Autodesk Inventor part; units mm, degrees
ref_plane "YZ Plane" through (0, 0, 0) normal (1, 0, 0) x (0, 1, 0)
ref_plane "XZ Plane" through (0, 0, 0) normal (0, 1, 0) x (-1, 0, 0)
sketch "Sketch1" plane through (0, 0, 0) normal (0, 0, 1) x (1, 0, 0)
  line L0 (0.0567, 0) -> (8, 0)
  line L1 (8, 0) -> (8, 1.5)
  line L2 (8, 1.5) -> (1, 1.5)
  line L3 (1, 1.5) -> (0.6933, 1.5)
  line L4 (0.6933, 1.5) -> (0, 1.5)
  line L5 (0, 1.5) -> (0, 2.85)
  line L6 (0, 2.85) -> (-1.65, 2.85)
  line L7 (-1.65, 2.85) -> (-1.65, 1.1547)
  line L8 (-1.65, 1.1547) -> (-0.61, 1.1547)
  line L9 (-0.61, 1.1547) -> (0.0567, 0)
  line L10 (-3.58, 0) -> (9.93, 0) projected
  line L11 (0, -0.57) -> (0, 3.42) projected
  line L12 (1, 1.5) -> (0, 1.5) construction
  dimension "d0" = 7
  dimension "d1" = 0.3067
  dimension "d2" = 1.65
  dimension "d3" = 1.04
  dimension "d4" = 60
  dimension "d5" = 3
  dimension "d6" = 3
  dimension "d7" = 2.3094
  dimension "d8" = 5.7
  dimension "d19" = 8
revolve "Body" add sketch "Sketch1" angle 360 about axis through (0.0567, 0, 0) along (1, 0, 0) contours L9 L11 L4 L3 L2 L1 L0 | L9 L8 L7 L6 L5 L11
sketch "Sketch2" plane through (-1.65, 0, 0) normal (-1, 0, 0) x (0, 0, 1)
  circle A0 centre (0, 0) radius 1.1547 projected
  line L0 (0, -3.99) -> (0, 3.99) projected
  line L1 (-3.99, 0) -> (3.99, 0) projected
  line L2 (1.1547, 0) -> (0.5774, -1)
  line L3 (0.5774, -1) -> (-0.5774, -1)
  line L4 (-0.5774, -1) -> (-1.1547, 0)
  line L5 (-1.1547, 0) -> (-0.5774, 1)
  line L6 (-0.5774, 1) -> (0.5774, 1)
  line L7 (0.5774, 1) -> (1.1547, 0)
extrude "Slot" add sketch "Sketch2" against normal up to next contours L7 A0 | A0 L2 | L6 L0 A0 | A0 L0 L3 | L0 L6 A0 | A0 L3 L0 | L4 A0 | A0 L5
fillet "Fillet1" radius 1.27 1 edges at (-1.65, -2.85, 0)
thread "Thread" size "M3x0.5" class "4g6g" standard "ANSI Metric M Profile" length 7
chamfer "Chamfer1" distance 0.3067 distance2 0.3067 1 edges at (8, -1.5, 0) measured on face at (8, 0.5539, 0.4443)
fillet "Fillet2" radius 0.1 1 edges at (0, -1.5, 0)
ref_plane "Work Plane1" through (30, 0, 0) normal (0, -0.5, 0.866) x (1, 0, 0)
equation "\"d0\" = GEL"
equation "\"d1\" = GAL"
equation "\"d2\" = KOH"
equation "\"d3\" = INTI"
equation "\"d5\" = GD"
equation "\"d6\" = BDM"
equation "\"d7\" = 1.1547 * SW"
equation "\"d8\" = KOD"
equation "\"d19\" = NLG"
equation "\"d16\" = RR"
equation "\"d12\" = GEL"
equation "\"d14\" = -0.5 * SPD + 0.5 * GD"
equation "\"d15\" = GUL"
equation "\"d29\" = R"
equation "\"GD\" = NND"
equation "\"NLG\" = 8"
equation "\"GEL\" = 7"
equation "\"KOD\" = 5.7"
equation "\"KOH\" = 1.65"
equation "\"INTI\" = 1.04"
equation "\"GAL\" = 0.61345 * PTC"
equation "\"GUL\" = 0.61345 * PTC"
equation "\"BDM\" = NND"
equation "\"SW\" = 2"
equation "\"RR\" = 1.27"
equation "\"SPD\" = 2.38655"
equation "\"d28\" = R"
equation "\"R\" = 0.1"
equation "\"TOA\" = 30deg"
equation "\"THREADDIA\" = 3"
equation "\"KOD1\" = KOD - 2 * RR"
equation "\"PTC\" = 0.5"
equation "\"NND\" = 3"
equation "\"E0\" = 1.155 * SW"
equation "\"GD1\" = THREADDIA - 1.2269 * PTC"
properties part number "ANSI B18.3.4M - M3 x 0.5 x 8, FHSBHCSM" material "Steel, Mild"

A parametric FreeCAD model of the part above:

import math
import FreeCAD as App
import Part
import Sketcher


def edges_at(feature, points):
    """Names of the edges that pass closest to the given points."""
    edges = feature.Shape.Edges
    near = lambda p: min(range(len(edges)), key=lambda i: edges[i].distToShape(Part.Vertex(*p))[0])
    return sorted({f"Edge{near(p) + 1}" for p in points})

doc = App.newDocument("Part")
body = doc.addObject("PartDesign::Body", "Body")

# Sketch on XY plane
sketch1 = doc.addObject("Sketcher::SketchObject", "Sketch")
body.addObject(sketch1)
sketch1.AttachmentSupport = (doc.XY_Plane, [""])
sketch1.MapMode = "FlatFace"
sketch1.addGeometry(Part.LineSegment(App.Vector(0.1, 0, 0), App.Vector(8, 0, 0)), False)
sketch1.addGeometry(Part.LineSegment(App.Vector(8, 0, 0), App.Vector(8, 1.5, 0)), False)
sketch1.addGeometry(Part.LineSegment(App.Vector(8, 1.5, 0), App.Vector(0, 1.5, 0)), False)
sketch1.addGeometry(Part.LineSegment(App.Vector(0, 1.5, 0), App.Vector(0, 2.9, 0)), False)
sketch1.addGeometry(Part.LineSegment(App.Vector(0, 2.9, 0), App.Vector(-1.6, 2.9, 0)), False)
sketch1.addGeometry(Part.LineSegment(App.Vector(-1.6, 2.9, 0), App.Vector(-1.6, 1.2, 0)), False)
sketch1.addGeometry(Part.LineSegment(App.Vector(-1.6, 1.2, 0), App.Vector(-0.6, 1.2, 0)), False)
sketch1.addGeometry(Part.LineSegment(App.Vector(-0.6, 1.2, 0), App.Vector(0.1, 0, 0)), False)
sketch1.addConstraint(Sketcher.Constraint("Coincident", 0, 2, 1, 1))
sketch1.addConstraint(Sketcher.Constraint("Coincident", 1, 2, 2, 1))
sketch1.addConstraint(Sketcher.Constraint("Coincident", 2, 2, 3, 1))
sketch1.addConstraint(Sketcher.Constraint("Coincident", 3, 2, 4, 1))
sketch1.addConstraint(Sketcher.Constraint("Coincident", 4, 2, 5, 1))
sketch1.addConstraint(Sketcher.Constraint("Coincident", 5, 2, 6, 1))
sketch1.addConstraint(Sketcher.Constraint("Coincident", 6, 2, 7, 1))
sketch1.addConstraint(Sketcher.Constraint("Coincident", 7, 2, 0, 1))
sketch1.addConstraint(Sketcher.Constraint("Horizontal", 0))
sketch1.addConstraint(Sketcher.Constraint("Vertical", 1))
sketch1.addConstraint(Sketcher.Constraint("Horizontal", 2))
sketch1.addConstraint(Sketcher.Constraint("Vertical", 3))
sketch1.addConstraint(Sketcher.Constraint("Horizontal", 4))
sketch1.addConstraint(Sketcher.Constraint("Vertical", 5))
sketch1.addConstraint(Sketcher.Constraint("Horizontal", 6))
sketch1.addConstraint(Sketcher.Constraint("PointOnObject", 0, 2, -1))
sketch1.addConstraint(Sketcher.Constraint("PointOnObject", 2, 2, -2))
sketch1.addConstraint(Sketcher.Constraint("DistanceX", 2, 2, 2, 1, 8.0))
sketch1.addConstraint(Sketcher.Constraint("DistanceX", 4, 2, 4, 1, 1.65))
sketch1.addConstraint(Sketcher.Constraint("DistanceX", 6, 1, 6, 2, 1.04))
sketch1.addConstraint(Sketcher.Constraint("DistanceY", 1, 1, 1, 2, 1.5))
sketch1.addConstraint(Sketcher.Constraint("DistanceY", 3, 1, 3, 2, 1.35))
sketch1.addConstraint(Sketcher.Constraint("DistanceX", 0, 1, 0, 2, 7.9433))
sketch1.addConstraint(Sketcher.Constraint("DistanceY", 5, 2, 5, 1, 1.6953))
revolution = doc.addObject("PartDesign::Revolution", "Revolution")
body.addObject(revolution)
revolution.Profile = sketch1
revolution.ReferenceAxis = (sketch1, ["H_Axis"])
revolution.Angle = 360

# Sketch on YZ plane
sketch2 = doc.addObject("Sketcher::SketchObject", "Sketch001")
body.addObject(sketch2)
sketch2.AttachmentSupport = (doc.YZ_Plane, [""])
sketch2.MapMode = "FlatFace"
sketch2.AttachmentOffset = App.Placement(App.Vector(0, 0, -1.65), App.Rotation())
sketch2.addGeometry(Part.LineSegment(App.Vector(1, 0.6, 0), App.Vector(0, 1.2, 0)), False)
sketch2.addGeometry(Part.ArcOfCircle(Part.Circle(App.Vector(0, 0, 0), App.Vector(0, 0, 1), 1.2), math.radians(30), math.radians(90)), False)
sketch2.addGeometry(Part.ArcOfCircle(Part.Circle(App.Vector(0, 0, 0), App.Vector(0, 0, 1), 1.2), math.radians(90), math.radians(150)), False)
sketch2.addGeometry(Part.LineSegment(App.Vector(0, 1.2, 0), App.Vector(-1, 0.6, 0)), False)
sketch2.addGeometry(Part.ArcOfCircle(Part.Circle(App.Vector(0, 0, 0), App.Vector(0, 0, 1), 1.2), math.radians(-30), math.radians(30)), False)
sketch2.addGeometry(Part.LineSegment(App.Vector(1, 0.6, 0), App.Vector(1, -0.6, 0)), False)
sketch2.addGeometry(Part.LineSegment(App.Vector(-1, 0.6, 0), App.Vector(-1, -0.6, 0)), False)
sketch2.addGeometry(Part.ArcOfCircle(Part.Circle(App.Vector(0, 0, 0), App.Vector(0, 0, 1), 1.2), math.radians(150), math.radians(210)), False)
sketch2.addGeometry(Part.LineSegment(App.Vector(-1, -0.6, 0), App.Vector(0, -1.2, 0)), False)
sketch2.addGeometry(Part.ArcOfCircle(Part.Circle(App.Vector(0, 0, 0), App.Vector(0, 0, 1), 1.2), math.radians(-150), math.radians(-90)), False)
sketch2.addGeometry(Part.ArcOfCircle(Part.Circle(App.Vector(0, 0, 0), App.Vector(0, 0, 1), 1.2), math.radians(-90), math.radians(-30)), False)
sketch2.addGeometry(Part.LineSegment(App.Vector(0, -1.2, 0), App.Vector(1, -0.6, 0)), False)
sketch2.addConstraint(Sketcher.Constraint("Coincident", 0, 1, 1, 1))
sketch2.addConstraint(Sketcher.Constraint("Coincident", 1, 2, 0, 2))
sketch2.addConstraint(Sketcher.Constraint("Coincident", 2, 1, 3, 1))
sketch2.addConstraint(Sketcher.Constraint("Coincident", 3, 2, 2, 2))
sketch2.addConstraint(Sketcher.Constraint("Coincident", 4, 1, 5, 2))
sketch2.addConstraint(Sketcher.Constraint("Coincident", 5, 1, 4, 2))
sketch2.addConstraint(Sketcher.Constraint("Coincident", 6, 1, 7, 1))
sketch2.addConstraint(Sketcher.Constraint("Coincident", 7, 2, 6, 2))
sketch2.addConstraint(Sketcher.Constraint("Coincident", 8, 1, 9, 1))
sketch2.addConstraint(Sketcher.Constraint("Coincident", 9, 2, 8, 2))
sketch2.addConstraint(Sketcher.Constraint("Coincident", 10, 1, 11, 1))
sketch2.addConstraint(Sketcher.Constraint("Coincident", 11, 2, 10, 2))
sketch2.addConstraint(Sketcher.Constraint("Vertical", 5))
sketch2.addConstraint(Sketcher.Constraint("Vertical", 6))
sketch2.addConstraint(Sketcher.Constraint("Coincident", 1, 3, -1, 1))
sketch2.addConstraint(Sketcher.Constraint("Coincident", 2, 3, -1, 1))
sketch2.addConstraint(Sketcher.Constraint("Coincident", 4, 3, -1, 1))
sketch2.addConstraint(Sketcher.Constraint("Coincident", 7, 3, -1, 1))
sketch2.addConstraint(Sketcher.Constraint("Coincident", 9, 3, -1, 1))
sketch2.addConstraint(Sketcher.Constraint("Coincident", 10, 3, -1, 1))
sketch2.addConstraint(Sketcher.Constraint("Coincident", 2, 1, 1, 2))
sketch2.addConstraint(Sketcher.Constraint("Coincident", 5, 1, 0, 1))
sketch2.addConstraint(Sketcher.Constraint("Coincident", 6, 1, 3, 2))
sketch2.addConstraint(Sketcher.Constraint("Coincident", 8, 1, 7, 2))
sketch2.addConstraint(Sketcher.Constraint("Coincident", 10, 1, 9, 2))
sketch2.addConstraint(Sketcher.Constraint("PointOnObject", 1, 2, -2))
sketch2.addConstraint(Sketcher.Constraint("PointOnObject", 9, 2, -2))
sketch2.addConstraint(Sketcher.Constraint("Parallel", 0, 8))
sketch2.addConstraint(Sketcher.Constraint("Parallel", 3, 11))
sketch2.addConstraint(Sketcher.Constraint("DistanceX", -1, 1, 0, 1, 1.0))
sketch2.addConstraint(Sketcher.Constraint("Radius", 1, 1.1547))
pad1 = doc.addObject("PartDesign::Pad", "Pad")
body.addObject(pad1)
pad1.Profile = sketch2
pad1.Type = "UpToFirst"
doc.recompute()

fillet = doc.addObject("PartDesign::Fillet", "Fillet")
body.addObject(fillet)
fillet.Base = (pad1, edges_at(pad1, [(-1.65, -2.85, 0)]))
fillet.Radius = 1.27
doc.recompute()

chamfer = doc.addObject("PartDesign::Chamfer", "Chamfer")
body.addObject(chamfer)
chamfer.Base = (fillet, edges_at(fillet, [(8, -1.5, 0)]))
chamfer.ChamferType = "Two distances"
chamfer.Size = 0.3067
chamfer.Size2 = 0.3067
doc.recompute()

fillet2 = doc.addObject("PartDesign::Fillet", "Fillet001")
body.addObject(fillet2)
fillet2.Base = (chamfer, edges_at(chamfer, [(0, -1.5, 0)]))
fillet2.Radius = 0.1

doc.recompute()
